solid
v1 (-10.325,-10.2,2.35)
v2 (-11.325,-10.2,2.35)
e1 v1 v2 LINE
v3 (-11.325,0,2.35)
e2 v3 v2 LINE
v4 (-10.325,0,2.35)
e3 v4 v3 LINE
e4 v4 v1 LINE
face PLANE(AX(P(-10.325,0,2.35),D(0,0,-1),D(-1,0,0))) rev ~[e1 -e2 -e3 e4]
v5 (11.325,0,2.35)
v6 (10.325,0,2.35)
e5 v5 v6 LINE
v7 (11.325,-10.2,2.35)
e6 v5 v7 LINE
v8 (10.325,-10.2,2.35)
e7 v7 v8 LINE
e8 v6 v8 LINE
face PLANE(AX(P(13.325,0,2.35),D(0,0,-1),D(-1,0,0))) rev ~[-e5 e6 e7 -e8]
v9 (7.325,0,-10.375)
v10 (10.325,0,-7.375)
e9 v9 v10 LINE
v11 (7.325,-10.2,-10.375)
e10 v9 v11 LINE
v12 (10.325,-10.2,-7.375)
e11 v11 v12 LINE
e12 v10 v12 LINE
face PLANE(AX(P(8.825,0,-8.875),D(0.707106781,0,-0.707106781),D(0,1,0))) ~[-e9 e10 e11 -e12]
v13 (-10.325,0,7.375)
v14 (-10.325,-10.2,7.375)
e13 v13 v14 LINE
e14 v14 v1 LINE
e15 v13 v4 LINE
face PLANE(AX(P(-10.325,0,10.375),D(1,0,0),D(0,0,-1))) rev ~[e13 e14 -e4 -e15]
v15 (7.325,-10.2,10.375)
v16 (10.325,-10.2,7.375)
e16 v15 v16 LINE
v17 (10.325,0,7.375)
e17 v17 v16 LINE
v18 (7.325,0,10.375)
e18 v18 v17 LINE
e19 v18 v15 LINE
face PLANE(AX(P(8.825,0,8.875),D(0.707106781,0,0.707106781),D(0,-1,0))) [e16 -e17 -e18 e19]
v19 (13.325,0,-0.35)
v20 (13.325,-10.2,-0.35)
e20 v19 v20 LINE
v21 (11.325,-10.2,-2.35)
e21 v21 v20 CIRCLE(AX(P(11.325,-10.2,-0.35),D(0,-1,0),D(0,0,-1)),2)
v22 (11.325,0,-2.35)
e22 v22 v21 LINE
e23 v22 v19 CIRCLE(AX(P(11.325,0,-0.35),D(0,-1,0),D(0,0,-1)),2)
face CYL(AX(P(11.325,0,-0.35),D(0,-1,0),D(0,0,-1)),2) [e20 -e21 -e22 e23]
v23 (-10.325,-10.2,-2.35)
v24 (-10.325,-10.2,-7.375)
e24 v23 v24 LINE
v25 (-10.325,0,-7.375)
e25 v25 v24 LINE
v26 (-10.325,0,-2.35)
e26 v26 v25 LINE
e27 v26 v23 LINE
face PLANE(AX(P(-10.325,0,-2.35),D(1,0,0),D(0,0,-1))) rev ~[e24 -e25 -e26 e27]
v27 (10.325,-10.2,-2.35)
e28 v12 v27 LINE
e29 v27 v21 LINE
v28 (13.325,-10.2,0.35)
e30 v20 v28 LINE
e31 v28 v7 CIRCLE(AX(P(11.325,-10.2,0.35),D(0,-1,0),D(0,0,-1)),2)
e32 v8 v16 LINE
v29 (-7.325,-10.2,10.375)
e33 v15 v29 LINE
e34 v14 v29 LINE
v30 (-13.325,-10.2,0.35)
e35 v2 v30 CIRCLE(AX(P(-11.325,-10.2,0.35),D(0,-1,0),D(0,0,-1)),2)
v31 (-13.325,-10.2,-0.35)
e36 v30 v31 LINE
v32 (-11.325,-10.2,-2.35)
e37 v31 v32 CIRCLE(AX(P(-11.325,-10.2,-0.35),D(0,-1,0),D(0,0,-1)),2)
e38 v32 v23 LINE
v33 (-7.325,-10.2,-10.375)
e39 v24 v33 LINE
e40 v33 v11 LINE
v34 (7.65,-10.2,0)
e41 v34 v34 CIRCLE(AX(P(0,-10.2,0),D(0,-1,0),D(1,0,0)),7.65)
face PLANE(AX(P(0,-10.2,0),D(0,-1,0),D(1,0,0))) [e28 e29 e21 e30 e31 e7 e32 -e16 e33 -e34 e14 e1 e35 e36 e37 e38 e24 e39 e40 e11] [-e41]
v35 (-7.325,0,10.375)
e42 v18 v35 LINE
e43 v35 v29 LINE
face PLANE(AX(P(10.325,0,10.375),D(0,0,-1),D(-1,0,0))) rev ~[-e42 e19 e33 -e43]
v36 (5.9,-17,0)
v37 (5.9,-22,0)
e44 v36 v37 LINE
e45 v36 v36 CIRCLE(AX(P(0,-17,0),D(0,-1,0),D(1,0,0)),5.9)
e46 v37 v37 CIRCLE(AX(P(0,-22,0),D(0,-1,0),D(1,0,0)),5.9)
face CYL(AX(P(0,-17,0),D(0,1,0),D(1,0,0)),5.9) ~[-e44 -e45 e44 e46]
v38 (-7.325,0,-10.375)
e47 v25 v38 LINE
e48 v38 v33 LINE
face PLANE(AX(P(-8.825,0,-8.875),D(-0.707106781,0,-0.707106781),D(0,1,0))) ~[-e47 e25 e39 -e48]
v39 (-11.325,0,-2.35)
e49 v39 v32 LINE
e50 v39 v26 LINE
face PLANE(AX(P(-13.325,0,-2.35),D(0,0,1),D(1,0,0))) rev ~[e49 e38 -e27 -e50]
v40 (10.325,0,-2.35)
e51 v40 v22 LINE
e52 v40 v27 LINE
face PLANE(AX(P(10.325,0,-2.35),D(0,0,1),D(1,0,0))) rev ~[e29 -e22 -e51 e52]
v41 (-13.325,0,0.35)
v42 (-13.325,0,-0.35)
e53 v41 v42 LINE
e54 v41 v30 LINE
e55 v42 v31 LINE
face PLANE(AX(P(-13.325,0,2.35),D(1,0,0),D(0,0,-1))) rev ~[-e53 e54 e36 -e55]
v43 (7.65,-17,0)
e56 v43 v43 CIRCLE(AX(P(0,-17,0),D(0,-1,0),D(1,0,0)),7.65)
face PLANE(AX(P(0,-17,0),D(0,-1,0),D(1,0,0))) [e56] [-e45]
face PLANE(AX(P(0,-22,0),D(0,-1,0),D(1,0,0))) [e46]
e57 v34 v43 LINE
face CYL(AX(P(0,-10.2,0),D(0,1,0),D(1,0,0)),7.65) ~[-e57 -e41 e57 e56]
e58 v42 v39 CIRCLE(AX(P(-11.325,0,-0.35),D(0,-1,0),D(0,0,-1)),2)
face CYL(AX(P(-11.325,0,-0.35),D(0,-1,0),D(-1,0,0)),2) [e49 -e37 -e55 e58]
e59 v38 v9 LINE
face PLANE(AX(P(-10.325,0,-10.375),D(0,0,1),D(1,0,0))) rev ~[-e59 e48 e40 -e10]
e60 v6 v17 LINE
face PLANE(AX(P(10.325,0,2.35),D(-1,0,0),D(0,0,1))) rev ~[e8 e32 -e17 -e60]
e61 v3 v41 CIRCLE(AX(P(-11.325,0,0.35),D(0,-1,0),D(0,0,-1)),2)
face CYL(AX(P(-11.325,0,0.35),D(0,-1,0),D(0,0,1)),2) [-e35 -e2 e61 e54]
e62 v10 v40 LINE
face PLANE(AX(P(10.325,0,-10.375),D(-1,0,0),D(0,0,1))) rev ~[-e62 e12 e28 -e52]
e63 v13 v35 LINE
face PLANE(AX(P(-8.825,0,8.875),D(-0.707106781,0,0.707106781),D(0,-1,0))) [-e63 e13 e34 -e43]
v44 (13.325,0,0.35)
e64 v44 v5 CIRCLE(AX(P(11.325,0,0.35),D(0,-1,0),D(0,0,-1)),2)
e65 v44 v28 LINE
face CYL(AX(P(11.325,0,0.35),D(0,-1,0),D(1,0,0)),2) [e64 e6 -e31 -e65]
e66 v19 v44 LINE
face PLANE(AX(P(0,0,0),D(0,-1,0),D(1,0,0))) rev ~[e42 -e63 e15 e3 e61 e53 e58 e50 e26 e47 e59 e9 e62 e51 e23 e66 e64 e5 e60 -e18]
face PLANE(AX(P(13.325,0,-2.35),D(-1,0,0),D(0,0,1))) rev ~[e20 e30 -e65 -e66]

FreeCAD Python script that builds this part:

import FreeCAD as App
import Part
import Sketcher

V = App.Vector


def edges_at(feature, points):
    """Names of the edges that pass closest to the given points."""
    edges = feature.Shape.Edges
    near = lambda p: min(range(len(edges)), key=lambda i: edges[i].distToShape(Part.Vertex(*p))[0])
    return sorted({f"Edge{near(p) + 1}" for p in points})

doc = App.newDocument("Part")
body = doc.addObject("PartDesign::Body", "Body")

# Sketch on XZ plane
sketch1 = body.newObject("Sketcher::SketchObject", "Sketch")
sketch1.AttachmentSupport = (doc.getObject("XZ_Plane"), [""])
sketch1.MapMode = "FlatFace"
sketch1.addGeometry(Part.LineSegment(V(10.3, 2.4, 0), V(10.3, 10.4, 0)), False)
sketch1.addGeometry(Part.LineSegment(V(10.3, 10.4, 0), V(-10.3, 10.4, 0)), False)
sketch1.addGeometry(Part.LineSegment(V(-10.3, 10.4, 0), V(-10.3, 2.4, 0)), False)
sketch1.addGeometry(Part.LineSegment(V(-10.3, 2.4, 0), V(-13.3, 2.4, 0)), False)
sketch1.addGeometry(Part.LineSegment(V(-13.3, 2.4, 0), V(-13.3, -2.4, 0)), False)
sketch1.addGeometry(Part.LineSegment(V(-13.3, -2.4, 0), V(-10.3, -2.4, 0)), False)
sketch1.addGeometry(Part.LineSegment(V(-10.3, -2.4, 0), V(-10.3, -10.4, 0)), False)
sketch1.addGeometry(Part.LineSegment(V(-10.3, -10.4, 0), V(10.3, -10.4, 0)), False)
sketch1.addGeometry(Part.LineSegment(V(10.3, -10.4, 0), V(10.3, -2.4, 0)), False)
sketch1.addGeometry(Part.LineSegment(V(10.3, -2.4, 0), V(13.3, -2.4, 0)), False)
sketch1.addGeometry(Part.LineSegment(V(13.3, -2.4, 0), V(13.3, 2.4, 0)), False)
sketch1.addGeometry(Part.LineSegment(V(13.3, 2.4, 0), V(10.3, 2.4, 0)), False)
sketch1.addConstraint(Sketcher.Constraint("Coincident", 0, 2, 1, 1))
sketch1.addConstraint(Sketcher.Constraint("Coincident", 1, 2, 2, 1))
sketch1.addConstraint(Sketcher.Constraint("Coincident", 2, 2, 3, 1))
sketch1.addConstraint(Sketcher.Constraint("Coincident", 3, 2, 4, 1))
sketch1.addConstraint(Sketcher.Constraint("Coincident", 4, 2, 5, 1))
sketch1.addConstraint(Sketcher.Constraint("Coincident", 5, 2, 6, 1))
sketch1.addConstraint(Sketcher.Constraint("Coincident", 6, 2, 7, 1))
sketch1.addConstraint(Sketcher.Constraint("Coincident", 7, 2, 8, 1))
sketch1.addConstraint(Sketcher.Constraint("Coincident", 8, 2, 9, 1))
sketch1.addConstraint(Sketcher.Constraint("Coincident", 9, 2, 10, 1))
sketch1.addConstraint(Sketcher.Constraint("Coincident", 10, 2, 11, 1))
sketch1.addConstraint(Sketcher.Constraint("Coincident", 11, 2, 0, 1))
sketch1.addConstraint(Sketcher.Constraint("Vertical", 0))
sketch1.addConstraint(Sketcher.Constraint("Horizontal", 1))
sketch1.addConstraint(Sketcher.Constraint("Vertical", 2))
sketch1.addConstraint(Sketcher.Constraint("Horizontal", 3))
sketch1.addConstraint(Sketcher.Constraint("Vertical", 4))
sketch1.addConstraint(Sketcher.Constraint("Horizontal", 5))
sketch1.addConstraint(Sketcher.Constraint("Vertical", 6))
sketch1.addConstraint(Sketcher.Constraint("Horizontal", 7))
sketch1.addConstraint(Sketcher.Constraint("Vertical", 8))
sketch1.addConstraint(Sketcher.Constraint("Horizontal", 9))
sketch1.addConstraint(Sketcher.Constraint("Vertical", 10))
sketch1.addConstraint(Sketcher.Constraint("Horizontal", 11))
sketch1.addConstraint(Sketcher.Constraint("Symmetric", 0, 2, 6, 2, -1, 1))
sketch1.addConstraint(Sketcher.Constraint("Symmetric", 2, 2, 8, 2, -1, 1))
sketch1.addConstraint(Sketcher.Constraint("Symmetric", 4, 2, 10, 2, -1, 1))
sketch1.addConstraint(Sketcher.Constraint("Symmetric", 5, 2, 8, 2, -2))
sketch1.addConstraint(Sketcher.Constraint("DistanceX", 3, 2, 3, 1, 3.0))
sketch1.addConstraint(Sketcher.Constraint("DistanceY", 4, 2, 4, 1, 4.7))
sketch1.addConstraint(Sketcher.Constraint("DistanceX", 1, 2, 1, 1, 20.65))
sketch1.addConstraint(Sketcher.Constraint("DistanceY", 0, 1, 0, 2, 8.025))
pad1 = body.newObject("PartDesign::Pad", "Pad")
pad1.Profile = sketch1
pad1.Length = 10.2
doc.recompute()

fillet = body.newObject("PartDesign::Fillet", "Fillet")
fillet.Base = (pad1, edges_at(pad1, [
    (-13.325, -5.1, -2.35),
    (-13.325, -5.1, 2.35),
    (13.325, -5.1, -2.35),
    (13.325, -5.1, 2.35),
]))
fillet.Radius = 2

# Sketch on XZ plane
sketch2 = body.newObject("Sketcher::SketchObject", "Sketch001")
sketch2.AttachmentSupport = (doc.getObject("XZ_Plane"), [""])
sketch2.MapMode = "FlatFace"
sketch2.AttachmentOffset = App.Placement(V(0, 0, 10.2), App.Rotation())
sketch2.addGeometry(Part.Circle(V(0, 0, 0), V(0, 0, 1), 8), False)
sketch2.addConstraint(Sketcher.Constraint("Coincident", 0, 3, -1, 1))
sketch2.addConstraint(Sketcher.Constraint("Diameter", 0, 15.3))
pad2 = body.newObject("PartDesign::Pad", "Pad001")
pad2.Profile = sketch2
pad2.Length = 6.8
doc.recompute()

chamfer = body.newObject("PartDesign::Chamfer", "Chamfer")
chamfer.Base = (pad2, edges_at(pad2, [
    (-10.325, -5.1, -10.375),
    (-10.325, -5.1, 10.375),
    (10.325, -5.1, -10.375),
    (10.325, -5.1, 10.375),
]))
chamfer.Size = 3

# Sketch on XZ plane
sketch3 = body.newObject("Sketcher::SketchObject", "Sketch002")
sketch3.AttachmentSupport = (doc.getObject("XZ_Plane"), [""])
sketch3.MapMode = "FlatFace"
sketch3.AttachmentOffset = App.Placement(V(0, 0, 17), App.Rotation())
sketch3.addGeometry(Part.Circle(V(0, 0, 0), V(0, 0, 1), 6), False)
sketch3.addConstraint(Sketcher.Constraint("Coincident", 0, 3, -1, 1))
sketch3.addConstraint(Sketcher.Constraint("Diameter", 0, 11.8))
pad3 = body.newObject("PartDesign::Pad", "Pad002")
pad3.Profile = sketch3
pad3.Length = 5

doc.recompute()
